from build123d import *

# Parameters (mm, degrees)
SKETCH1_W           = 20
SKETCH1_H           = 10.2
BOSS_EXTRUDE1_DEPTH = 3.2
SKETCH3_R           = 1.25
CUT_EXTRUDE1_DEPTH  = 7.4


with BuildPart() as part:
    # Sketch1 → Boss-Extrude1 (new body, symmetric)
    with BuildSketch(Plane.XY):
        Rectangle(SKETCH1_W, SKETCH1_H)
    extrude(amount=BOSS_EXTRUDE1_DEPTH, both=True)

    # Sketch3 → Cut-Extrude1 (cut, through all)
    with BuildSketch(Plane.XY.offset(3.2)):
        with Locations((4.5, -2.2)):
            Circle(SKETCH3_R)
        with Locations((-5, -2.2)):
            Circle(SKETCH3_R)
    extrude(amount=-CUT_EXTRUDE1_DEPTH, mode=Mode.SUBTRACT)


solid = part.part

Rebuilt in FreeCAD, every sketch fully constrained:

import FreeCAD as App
import Part
import Sketcher
Q = App.Units.Quantity

doc = App.newDocument("Part")
body = doc.addObject("PartDesign::Body", "Body")

# Sketch on XY plane
sketch1 = body.newObject("Sketcher::SketchObject", "Sketch")
sketch1.AttachmentSupport = (doc.getObject("XY_Plane"), [""])
sketch1.MapMode = "FlatFace"
sketch1.addGeometry([
    Part.LineSegment(App.Vector(-10, 5, 0), App.Vector(-10, -5, 0)),
    Part.LineSegment(App.Vector(-10, -5, 0), App.Vector(10, -5, 0)),
    Part.LineSegment(App.Vector(10, -5, 0), App.Vector(10, 5, 0)),
    Part.LineSegment(App.Vector(10, 5, 0), App.Vector(-10, 5, 0)),
], False)
sketch1.addConstraint([
    Sketcher.Constraint("Coincident", 0, 2, 1, 1),
    Sketcher.Constraint("Coincident", 1, 2, 2, 1),
    Sketcher.Constraint("Coincident", 2, 2, 3, 1),
    Sketcher.Constraint("Coincident", 3, 2, 0, 1),
    Sketcher.Constraint("Vertical", 0),
    Sketcher.Constraint("Horizontal", 1),
    Sketcher.Constraint("Vertical", 2),
    Sketcher.Constraint("Horizontal", 3),
    Sketcher.Constraint("Symmetric", 0, 2, 2, 2, -1, 1),
    Sketcher.Constraint("DistanceX", 1, 1, 1, 2, Q("20 mm")),
    Sketcher.Constraint("DistanceY", 0, 2, 0, 1, Q("10.2 mm")),
])
pad1 = body.newObject("PartDesign::Pad", "Pad")
pad1.Profile = sketch1
pad1.Length = 6.4
pad1.Midplane = True

# Sketch on XY plane
sketch2 = body.newObject("Sketcher::SketchObject", "Sketch001")
sketch2.AttachmentSupport = (doc.getObject("XY_Plane"), [""])
sketch2.MapMode = "FlatFace"
sketch2.AttachmentOffset = App.Placement(App.Vector(0, 0, 3.2), App.Rotation())
sketch2.addGeometry([
    Part.Circle(App.Vector(4.5, -2.2, 0), App.Vector(0, 0, 1), 1.2),
    Part.Circle(App.Vector(-5, -2.2, 0), App.Vector(0, 0, 1), 1.2),
], False)
sketch2.addConstraint([
    Sketcher.Constraint("Equal", 0, 1),
    Sketcher.Constraint("Horizontal", 0, 3, 1, 3),
    Sketcher.Constraint("Diameter", 0, Q("2.5 mm")),
    Sketcher.Constraint("DistanceX", 1, 3, -1, 1, Q("5 mm")),
    Sketcher.Constraint("DistanceX", -1, 1, 0, 3, Q("4.5 mm")),
    Sketcher.Constraint("DistanceY", 0, 3, -1, 1, Q("2.2 mm")),
])
pocket1 = body.newObject("PartDesign::Pocket", "Pocket")
pocket1.Profile = sketch2
pocket1.Type = "ThroughAll"

doc.recompute()
